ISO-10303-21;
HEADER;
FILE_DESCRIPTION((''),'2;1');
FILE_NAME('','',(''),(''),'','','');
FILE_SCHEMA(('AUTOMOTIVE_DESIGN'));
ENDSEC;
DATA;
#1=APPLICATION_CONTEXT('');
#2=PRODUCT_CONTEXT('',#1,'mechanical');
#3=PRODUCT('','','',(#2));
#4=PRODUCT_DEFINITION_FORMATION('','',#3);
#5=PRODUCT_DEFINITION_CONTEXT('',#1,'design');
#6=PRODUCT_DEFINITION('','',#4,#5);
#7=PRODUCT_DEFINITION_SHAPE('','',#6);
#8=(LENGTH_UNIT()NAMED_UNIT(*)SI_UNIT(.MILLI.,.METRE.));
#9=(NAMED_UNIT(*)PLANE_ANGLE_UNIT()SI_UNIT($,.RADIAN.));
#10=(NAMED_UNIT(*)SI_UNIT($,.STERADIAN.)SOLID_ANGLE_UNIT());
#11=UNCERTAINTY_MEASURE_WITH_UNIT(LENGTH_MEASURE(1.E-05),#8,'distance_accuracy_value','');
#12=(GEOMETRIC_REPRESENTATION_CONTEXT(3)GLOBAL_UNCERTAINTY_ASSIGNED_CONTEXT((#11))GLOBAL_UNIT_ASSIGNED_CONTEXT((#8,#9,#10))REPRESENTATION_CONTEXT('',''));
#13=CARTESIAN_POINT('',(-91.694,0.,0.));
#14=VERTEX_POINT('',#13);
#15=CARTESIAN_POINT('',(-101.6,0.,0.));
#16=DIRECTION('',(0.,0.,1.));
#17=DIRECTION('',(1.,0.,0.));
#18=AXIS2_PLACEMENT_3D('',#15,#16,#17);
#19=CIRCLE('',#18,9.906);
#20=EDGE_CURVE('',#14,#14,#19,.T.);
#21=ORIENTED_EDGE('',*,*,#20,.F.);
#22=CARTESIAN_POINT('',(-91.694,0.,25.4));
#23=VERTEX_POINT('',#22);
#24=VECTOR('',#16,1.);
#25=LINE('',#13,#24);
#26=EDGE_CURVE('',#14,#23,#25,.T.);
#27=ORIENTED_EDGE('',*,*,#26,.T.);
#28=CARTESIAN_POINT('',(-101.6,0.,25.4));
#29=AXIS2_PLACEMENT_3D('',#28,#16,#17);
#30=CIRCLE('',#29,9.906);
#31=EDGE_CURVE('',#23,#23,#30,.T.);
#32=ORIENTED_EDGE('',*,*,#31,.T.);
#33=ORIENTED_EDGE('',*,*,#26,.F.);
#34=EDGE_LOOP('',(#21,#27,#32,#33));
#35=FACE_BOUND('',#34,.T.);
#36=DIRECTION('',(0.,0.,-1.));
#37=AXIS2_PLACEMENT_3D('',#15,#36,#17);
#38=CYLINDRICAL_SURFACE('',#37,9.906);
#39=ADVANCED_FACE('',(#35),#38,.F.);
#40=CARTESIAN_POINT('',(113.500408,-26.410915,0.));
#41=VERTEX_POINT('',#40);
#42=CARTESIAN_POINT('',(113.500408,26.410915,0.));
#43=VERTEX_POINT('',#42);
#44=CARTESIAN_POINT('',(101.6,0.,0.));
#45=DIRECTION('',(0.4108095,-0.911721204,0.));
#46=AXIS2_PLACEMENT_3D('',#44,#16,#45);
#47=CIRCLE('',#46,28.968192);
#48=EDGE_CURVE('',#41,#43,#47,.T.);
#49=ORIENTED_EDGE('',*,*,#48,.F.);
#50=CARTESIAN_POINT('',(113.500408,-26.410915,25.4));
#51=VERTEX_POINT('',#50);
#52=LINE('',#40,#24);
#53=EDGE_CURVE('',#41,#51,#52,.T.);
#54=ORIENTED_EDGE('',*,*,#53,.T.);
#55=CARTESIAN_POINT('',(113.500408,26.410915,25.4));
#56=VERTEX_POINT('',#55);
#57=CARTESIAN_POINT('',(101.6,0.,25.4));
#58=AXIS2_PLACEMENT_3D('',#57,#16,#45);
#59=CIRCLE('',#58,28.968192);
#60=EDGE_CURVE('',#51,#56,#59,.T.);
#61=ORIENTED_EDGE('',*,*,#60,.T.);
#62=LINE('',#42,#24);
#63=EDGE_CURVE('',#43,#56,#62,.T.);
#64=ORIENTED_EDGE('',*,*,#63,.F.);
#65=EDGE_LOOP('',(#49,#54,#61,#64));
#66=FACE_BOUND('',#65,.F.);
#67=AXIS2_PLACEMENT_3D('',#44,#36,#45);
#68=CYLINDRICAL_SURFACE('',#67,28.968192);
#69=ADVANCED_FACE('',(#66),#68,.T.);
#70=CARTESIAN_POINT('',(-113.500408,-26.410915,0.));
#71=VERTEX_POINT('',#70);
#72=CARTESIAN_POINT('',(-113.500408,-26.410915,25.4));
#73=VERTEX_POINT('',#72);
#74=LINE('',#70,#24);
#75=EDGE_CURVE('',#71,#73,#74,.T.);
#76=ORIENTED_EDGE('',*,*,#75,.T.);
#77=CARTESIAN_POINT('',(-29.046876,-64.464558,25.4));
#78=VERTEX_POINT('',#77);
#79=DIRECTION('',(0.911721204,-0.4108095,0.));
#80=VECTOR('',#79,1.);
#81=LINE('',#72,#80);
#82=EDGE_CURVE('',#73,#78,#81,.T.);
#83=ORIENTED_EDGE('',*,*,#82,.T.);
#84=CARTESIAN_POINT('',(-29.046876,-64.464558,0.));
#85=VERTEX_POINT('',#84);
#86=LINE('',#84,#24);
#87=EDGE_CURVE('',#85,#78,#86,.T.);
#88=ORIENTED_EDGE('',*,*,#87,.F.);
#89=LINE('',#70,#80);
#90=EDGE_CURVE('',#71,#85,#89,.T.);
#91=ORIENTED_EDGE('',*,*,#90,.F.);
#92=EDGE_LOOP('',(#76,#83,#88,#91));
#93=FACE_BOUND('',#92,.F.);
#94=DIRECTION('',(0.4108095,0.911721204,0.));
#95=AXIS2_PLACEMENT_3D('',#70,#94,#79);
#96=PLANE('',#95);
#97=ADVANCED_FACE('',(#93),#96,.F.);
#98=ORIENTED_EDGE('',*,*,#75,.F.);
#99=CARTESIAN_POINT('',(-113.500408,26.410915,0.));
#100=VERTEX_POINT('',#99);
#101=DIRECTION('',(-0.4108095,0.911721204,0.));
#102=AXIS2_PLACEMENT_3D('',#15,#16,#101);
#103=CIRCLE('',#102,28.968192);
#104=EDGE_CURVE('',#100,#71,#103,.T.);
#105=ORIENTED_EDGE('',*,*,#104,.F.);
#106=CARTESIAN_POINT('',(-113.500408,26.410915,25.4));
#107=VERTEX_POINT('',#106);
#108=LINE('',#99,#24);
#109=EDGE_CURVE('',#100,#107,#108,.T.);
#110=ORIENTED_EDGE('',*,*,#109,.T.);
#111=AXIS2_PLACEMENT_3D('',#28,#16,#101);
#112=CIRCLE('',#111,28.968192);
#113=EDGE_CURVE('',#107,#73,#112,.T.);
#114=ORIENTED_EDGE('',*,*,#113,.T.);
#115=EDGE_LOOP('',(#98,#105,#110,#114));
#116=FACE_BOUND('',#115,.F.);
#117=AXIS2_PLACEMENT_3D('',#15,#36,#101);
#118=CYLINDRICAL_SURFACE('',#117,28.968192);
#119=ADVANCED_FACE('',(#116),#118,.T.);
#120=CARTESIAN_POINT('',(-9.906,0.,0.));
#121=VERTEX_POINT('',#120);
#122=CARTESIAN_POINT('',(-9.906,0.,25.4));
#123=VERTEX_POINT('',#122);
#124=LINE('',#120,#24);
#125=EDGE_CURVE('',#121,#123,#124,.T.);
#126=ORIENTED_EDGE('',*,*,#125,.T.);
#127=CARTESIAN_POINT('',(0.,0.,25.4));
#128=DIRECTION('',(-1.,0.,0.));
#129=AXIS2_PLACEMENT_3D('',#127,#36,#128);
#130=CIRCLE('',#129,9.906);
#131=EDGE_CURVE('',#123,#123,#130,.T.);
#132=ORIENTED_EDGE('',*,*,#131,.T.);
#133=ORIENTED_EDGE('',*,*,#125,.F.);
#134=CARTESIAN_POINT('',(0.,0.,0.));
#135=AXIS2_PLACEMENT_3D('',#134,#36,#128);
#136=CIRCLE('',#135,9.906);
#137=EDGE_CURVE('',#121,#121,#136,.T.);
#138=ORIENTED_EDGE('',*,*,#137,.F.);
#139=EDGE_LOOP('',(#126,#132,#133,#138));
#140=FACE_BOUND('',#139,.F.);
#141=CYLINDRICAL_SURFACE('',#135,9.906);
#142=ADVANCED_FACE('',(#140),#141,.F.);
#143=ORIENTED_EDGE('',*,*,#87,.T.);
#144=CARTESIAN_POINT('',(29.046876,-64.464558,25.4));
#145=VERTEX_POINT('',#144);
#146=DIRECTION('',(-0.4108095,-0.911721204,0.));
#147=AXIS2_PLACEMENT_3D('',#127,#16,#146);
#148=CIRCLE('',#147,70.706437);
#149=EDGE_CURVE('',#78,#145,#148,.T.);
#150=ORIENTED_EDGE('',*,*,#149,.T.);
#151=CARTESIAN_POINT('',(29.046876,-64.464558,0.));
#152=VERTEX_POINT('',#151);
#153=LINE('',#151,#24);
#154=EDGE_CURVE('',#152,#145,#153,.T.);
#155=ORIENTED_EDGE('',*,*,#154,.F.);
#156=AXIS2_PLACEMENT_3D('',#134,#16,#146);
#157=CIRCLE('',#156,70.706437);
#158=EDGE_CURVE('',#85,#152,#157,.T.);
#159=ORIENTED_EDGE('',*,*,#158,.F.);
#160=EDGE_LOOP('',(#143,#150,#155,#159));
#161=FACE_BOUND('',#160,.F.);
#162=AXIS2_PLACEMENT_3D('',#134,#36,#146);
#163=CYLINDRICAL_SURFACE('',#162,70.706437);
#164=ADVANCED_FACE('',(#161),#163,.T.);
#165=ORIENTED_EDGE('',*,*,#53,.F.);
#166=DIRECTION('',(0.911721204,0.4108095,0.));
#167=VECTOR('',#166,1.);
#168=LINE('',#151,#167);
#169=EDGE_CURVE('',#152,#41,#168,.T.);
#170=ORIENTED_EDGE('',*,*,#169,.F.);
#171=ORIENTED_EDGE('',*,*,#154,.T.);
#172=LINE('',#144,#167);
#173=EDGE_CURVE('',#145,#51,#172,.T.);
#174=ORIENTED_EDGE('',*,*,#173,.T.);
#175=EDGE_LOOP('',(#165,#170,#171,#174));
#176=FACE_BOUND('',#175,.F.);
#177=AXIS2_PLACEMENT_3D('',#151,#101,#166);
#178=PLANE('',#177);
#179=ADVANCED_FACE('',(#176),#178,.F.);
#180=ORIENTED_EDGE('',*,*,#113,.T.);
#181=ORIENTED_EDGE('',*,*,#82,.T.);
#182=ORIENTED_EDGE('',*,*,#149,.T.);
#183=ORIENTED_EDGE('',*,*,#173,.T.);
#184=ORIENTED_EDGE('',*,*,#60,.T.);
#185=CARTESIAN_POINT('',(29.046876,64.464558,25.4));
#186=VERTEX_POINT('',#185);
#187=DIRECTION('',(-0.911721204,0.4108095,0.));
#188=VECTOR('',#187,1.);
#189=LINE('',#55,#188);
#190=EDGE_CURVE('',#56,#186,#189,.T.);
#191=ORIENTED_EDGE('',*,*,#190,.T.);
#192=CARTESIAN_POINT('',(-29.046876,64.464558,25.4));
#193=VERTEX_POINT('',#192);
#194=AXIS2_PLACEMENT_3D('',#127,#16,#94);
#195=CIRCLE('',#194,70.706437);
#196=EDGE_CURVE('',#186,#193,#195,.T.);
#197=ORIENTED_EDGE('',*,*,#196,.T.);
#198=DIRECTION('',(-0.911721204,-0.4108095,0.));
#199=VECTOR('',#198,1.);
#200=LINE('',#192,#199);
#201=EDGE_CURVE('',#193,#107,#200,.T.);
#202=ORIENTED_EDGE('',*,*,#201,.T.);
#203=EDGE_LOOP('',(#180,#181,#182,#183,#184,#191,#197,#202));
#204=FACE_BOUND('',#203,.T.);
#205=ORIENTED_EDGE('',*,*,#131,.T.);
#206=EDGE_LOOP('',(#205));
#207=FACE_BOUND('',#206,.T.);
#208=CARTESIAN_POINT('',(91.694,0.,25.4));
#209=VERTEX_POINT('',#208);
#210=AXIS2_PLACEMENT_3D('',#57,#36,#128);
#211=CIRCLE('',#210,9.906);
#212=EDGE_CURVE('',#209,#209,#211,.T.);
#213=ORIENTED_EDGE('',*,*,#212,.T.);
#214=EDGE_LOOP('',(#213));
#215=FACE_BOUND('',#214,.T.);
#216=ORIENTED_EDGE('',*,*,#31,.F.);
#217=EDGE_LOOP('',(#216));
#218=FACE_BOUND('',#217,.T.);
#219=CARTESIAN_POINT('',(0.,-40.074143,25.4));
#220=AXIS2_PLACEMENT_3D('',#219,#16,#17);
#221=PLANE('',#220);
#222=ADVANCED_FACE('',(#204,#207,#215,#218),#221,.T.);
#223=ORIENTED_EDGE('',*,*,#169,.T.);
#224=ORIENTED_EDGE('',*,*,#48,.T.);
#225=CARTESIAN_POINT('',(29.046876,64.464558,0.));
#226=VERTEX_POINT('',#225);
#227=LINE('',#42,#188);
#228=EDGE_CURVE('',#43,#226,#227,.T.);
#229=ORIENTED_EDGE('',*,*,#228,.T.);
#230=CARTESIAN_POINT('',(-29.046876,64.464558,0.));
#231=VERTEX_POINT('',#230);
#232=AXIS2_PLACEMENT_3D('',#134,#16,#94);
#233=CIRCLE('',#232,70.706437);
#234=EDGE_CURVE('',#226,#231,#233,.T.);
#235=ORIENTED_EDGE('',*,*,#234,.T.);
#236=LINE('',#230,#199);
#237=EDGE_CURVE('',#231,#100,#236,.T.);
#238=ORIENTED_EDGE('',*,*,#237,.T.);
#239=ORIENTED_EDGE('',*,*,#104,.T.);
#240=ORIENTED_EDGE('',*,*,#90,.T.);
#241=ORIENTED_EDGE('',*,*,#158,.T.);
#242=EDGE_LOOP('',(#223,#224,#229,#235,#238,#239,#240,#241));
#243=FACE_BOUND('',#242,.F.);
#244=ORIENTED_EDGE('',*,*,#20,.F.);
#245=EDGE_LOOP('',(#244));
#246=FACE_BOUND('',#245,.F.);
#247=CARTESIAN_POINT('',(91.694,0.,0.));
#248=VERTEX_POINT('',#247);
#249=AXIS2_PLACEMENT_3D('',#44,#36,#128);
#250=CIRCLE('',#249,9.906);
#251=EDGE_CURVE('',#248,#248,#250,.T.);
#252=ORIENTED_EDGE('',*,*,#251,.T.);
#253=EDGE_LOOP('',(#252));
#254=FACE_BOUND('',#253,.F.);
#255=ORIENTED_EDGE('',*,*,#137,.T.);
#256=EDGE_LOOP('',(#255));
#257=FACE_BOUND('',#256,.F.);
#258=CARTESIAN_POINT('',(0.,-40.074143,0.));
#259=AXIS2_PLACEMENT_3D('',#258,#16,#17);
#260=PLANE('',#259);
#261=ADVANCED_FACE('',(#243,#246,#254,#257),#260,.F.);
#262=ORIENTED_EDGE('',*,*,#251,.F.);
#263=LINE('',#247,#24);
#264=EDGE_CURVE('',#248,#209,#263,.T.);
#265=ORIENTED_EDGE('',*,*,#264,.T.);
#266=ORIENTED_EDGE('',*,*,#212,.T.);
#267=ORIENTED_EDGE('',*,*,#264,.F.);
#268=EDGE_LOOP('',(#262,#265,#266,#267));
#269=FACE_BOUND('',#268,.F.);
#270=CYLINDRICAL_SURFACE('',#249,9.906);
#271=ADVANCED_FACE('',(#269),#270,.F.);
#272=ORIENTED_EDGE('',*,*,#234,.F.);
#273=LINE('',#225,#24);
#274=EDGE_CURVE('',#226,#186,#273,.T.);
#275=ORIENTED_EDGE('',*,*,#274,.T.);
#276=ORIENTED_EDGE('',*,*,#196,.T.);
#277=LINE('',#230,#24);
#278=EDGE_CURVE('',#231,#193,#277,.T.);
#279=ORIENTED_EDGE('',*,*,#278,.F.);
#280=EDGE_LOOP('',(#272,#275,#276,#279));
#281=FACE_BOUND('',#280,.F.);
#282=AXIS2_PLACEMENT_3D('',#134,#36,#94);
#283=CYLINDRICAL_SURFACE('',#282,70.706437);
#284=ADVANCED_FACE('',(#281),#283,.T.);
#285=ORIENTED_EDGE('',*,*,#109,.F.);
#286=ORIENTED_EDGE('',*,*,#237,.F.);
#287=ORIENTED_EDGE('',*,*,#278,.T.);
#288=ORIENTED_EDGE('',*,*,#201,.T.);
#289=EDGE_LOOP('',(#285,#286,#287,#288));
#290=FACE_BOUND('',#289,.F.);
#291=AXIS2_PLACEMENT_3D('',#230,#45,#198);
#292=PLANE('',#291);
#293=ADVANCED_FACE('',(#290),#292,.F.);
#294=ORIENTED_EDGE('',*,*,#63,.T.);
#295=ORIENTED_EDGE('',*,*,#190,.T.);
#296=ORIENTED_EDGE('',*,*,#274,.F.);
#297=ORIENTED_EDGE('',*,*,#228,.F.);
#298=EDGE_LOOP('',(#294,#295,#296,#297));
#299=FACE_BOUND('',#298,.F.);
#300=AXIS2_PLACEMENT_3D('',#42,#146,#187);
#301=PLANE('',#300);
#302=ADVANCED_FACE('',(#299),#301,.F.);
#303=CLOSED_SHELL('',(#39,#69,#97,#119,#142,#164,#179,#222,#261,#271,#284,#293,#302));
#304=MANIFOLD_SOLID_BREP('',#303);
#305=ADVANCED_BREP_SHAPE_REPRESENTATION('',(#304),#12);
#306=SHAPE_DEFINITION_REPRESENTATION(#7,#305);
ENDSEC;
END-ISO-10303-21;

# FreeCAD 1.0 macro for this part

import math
import FreeCAD as App
import Part
import Sketcher

V = App.Vector
Q = App.Units.Quantity

doc = App.newDocument("Part")
body = doc.addObject("PartDesign::Body", "Body")

sketch1 = body.newObject("Sketcher::SketchObject", "Sketch")
sketch1.AttachmentSupport = (doc.getObject("XY_Plane"), [""])
sketch1.MapMode = "FlatFace"
sketch1.addGeometry([
    Part.ArcOfCircle(Part.Circle(V(0, 0, 0), V(0, 0, 1), 71), math.radians(-114), math.radians(-66)),
    Part.LineSegment(V(29, -64, 0), V(114, -26, 0)),
    Part.ArcOfCircle(Part.Circle(V(102, 0, 0), V(0, 0, 1), 29), math.radians(-66), math.radians(66)),
    Part.LineSegment(V(114, 26, 0), V(29, 64, 0)),
    Part.ArcOfCircle(Part.Circle(V(0, 0, 0), V(0, 0, 1), 71), math.radians(66), math.radians(114)),
    Part.LineSegment(V(-29, 64, 0), V(-114, 26, 0)),
    Part.ArcOfCircle(Part.Circle(V(-102, 0, 0), V(0, 0, 1), 29), math.radians(114), math.radians(246)),
    Part.LineSegment(V(-114, -26, 0), V(-29, -64, 0)),
    Part.Circle(V(-102, 0, 0), V(0, 0, 1), 10),
    Part.Circle(V(0, 0, 0), V(0, 0, 1), 10),
    Part.Circle(V(102, 0, 0), V(0, 0, 1), 10),
], False)
sketch1.addConstraint([
    Sketcher.Constraint("Tangent", 0, 2, 1, 1),
    Sketcher.Constraint("Tangent", 1, 2, 2, 1),
    Sketcher.Constraint("Tangent", 2, 2, 3, 1),
    Sketcher.Constraint("Tangent", 3, 2, 4, 1),
    Sketcher.Constraint("Tangent", 4, 2, 5, 1),
    Sketcher.Constraint("Tangent", 5, 2, 6, 1),
    Sketcher.Constraint("Tangent", 6, 2, 7, 1),
    Sketcher.Constraint("Tangent", 7, 2, 0, 1),
    Sketcher.Constraint("Coincident", 0, 3, -1, 1),
    Sketcher.Constraint("Coincident", 4, 3, -1, 1),
    Sketcher.Constraint("Coincident", 9, 3, -1, 1),
    Sketcher.Constraint("Coincident", 8, 3, 6, 3),
    Sketcher.Constraint("Coincident", 10, 3, 2, 3),
    Sketcher.Constraint("Equal", 0, 4),
    Sketcher.Constraint("Equal", 2, 6),
    Sketcher.Constraint("Equal", 8, 9),
    Sketcher.Constraint("Equal", 9, 10),
    Sketcher.Constraint("Symmetric", 2, 3, 6, 3, -1, 1),
    Sketcher.Constraint("PointOnObject", 2, 3, -1),
    Sketcher.Constraint("Diameter", 8, Q("0.78 in")),
    Sketcher.Constraint("DistanceX", -1, 1, 2, 3, Q("4 in")),
    Sketcher.Constraint("Radius", 2, Q("28.968192 mm")),
    Sketcher.Constraint("Radius", 0, Q("70.706437 mm")),
])
pad1 = body.newObject("PartDesign::Pad", "Pad")
pad1.Profile = sketch1
pad1.Length = Q("1 in")

doc.recompute()
